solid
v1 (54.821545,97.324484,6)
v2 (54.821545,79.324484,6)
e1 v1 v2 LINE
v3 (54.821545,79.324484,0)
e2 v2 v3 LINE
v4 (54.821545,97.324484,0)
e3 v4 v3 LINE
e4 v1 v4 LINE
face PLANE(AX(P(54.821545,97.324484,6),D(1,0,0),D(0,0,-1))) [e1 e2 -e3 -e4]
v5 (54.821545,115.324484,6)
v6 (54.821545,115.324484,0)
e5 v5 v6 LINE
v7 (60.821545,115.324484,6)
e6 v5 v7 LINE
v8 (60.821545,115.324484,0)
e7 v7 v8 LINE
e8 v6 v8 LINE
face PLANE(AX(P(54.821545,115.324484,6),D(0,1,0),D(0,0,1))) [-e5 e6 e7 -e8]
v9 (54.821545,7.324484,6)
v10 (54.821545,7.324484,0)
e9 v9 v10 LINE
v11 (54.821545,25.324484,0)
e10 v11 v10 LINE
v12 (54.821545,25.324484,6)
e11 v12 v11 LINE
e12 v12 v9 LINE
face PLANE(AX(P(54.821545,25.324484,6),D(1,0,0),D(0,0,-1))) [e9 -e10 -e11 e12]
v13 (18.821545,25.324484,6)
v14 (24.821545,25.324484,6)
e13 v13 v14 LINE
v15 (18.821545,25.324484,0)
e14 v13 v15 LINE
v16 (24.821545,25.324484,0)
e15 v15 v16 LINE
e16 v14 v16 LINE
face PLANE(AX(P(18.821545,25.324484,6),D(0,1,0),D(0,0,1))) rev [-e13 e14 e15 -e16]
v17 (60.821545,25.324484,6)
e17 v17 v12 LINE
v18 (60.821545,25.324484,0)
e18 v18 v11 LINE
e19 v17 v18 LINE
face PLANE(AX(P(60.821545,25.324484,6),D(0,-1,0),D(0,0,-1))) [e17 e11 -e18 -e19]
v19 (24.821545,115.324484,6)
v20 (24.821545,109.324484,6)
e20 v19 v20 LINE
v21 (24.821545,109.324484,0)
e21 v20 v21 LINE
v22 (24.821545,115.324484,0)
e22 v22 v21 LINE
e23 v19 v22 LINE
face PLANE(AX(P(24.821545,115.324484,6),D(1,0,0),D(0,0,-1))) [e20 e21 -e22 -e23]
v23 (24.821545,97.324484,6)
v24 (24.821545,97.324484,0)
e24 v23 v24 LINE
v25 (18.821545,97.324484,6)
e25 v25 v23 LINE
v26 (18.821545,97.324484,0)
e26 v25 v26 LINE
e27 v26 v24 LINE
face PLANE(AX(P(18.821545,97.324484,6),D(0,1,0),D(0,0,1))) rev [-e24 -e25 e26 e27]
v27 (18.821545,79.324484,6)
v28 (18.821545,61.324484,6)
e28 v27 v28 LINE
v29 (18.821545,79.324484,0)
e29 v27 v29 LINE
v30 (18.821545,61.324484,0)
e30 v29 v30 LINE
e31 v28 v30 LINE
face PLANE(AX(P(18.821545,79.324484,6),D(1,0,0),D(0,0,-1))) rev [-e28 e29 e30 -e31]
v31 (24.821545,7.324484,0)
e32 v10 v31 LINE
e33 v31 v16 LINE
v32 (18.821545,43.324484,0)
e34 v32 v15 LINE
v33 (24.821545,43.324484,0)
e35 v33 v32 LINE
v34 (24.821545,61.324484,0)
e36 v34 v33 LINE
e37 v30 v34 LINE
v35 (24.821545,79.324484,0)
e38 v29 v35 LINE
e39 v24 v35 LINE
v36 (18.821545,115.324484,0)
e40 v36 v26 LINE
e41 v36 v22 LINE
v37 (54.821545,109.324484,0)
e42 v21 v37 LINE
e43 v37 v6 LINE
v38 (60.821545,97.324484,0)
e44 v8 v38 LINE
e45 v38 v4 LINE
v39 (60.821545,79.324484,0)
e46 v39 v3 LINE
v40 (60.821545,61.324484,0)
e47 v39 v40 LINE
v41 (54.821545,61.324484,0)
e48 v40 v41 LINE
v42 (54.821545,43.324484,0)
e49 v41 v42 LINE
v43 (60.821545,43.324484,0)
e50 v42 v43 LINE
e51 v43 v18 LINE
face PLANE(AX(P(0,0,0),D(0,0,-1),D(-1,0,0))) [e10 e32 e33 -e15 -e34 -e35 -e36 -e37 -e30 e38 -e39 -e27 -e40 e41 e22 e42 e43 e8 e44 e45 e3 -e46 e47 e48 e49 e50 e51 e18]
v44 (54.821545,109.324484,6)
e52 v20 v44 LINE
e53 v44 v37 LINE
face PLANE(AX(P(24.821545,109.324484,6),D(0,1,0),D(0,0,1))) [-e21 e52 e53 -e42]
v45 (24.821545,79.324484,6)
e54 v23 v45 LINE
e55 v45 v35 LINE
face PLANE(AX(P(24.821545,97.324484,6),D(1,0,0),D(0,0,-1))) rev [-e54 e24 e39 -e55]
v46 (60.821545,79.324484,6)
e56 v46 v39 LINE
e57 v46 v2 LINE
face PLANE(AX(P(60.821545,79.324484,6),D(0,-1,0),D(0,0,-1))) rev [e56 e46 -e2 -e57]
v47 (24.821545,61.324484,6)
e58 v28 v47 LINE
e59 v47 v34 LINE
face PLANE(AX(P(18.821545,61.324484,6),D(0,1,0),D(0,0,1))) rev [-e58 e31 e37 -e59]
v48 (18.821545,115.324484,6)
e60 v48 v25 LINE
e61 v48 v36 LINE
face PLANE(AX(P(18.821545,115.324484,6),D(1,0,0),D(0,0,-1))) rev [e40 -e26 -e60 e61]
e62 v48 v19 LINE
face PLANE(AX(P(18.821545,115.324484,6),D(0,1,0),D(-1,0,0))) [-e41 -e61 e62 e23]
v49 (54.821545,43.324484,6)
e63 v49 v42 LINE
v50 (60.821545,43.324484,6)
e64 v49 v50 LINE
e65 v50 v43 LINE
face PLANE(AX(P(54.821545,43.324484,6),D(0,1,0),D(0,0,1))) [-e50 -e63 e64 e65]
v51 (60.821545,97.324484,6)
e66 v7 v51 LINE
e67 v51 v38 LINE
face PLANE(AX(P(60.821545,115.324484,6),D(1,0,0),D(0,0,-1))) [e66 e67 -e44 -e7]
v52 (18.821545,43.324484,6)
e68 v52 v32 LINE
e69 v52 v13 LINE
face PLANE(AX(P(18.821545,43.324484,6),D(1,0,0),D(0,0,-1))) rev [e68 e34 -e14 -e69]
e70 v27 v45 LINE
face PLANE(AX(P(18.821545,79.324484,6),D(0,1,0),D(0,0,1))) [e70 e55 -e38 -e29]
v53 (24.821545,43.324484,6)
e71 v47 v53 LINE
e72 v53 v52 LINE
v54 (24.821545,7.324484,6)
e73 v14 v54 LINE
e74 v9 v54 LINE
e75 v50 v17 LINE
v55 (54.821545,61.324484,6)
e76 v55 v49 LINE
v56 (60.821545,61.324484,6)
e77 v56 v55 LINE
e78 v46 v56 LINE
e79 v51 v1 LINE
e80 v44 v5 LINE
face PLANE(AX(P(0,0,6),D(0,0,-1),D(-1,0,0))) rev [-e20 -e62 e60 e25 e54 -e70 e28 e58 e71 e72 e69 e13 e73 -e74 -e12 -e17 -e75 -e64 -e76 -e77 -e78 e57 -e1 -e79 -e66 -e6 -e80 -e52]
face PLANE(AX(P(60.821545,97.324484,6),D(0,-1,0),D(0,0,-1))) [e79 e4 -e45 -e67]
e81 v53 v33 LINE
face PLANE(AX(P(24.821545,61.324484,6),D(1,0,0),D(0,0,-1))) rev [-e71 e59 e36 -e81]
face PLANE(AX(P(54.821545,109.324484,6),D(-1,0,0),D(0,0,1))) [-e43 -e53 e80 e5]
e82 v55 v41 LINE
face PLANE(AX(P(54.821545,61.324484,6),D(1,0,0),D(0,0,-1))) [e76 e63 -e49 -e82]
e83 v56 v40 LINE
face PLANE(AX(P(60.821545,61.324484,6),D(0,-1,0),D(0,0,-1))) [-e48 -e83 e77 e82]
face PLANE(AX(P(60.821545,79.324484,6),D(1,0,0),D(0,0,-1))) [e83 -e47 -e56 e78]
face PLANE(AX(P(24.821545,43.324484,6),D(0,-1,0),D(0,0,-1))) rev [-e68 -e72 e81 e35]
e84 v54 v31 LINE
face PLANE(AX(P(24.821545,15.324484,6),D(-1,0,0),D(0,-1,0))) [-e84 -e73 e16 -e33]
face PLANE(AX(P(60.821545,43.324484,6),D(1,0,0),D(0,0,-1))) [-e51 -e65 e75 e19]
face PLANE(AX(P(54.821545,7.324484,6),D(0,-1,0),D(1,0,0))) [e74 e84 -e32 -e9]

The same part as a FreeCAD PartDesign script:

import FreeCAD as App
import Part
import Sketcher
from FreeCAD import Vector


def add_polygon(sketch, points):
    """Adds a closed chain of lines whose ends are joined by coincident constraints."""
    first, n = sketch.GeometryCount, len(points)
    for a, b in zip(points, points[1:] + points[:1]):
        sketch.addGeometry(Part.LineSegment(App.Vector(*a, 0), App.Vector(*b, 0)), False)
    for i in range(n):
        sketch.addConstraint(Sketcher.Constraint("Coincident", first + i, 2, first + (i + 1) % n, 1))

doc = App.newDocument("Part")
params = doc.addObject("Spreadsheet::Sheet", "Params")
for row, (alias, value) in enumerate([
    ("sketch1_width", "6 mm"),
    ("sketch1_width2", "30 mm"),
    ("sketch1_height", "18 mm"),
    ("pad1_length", "6 mm"),
], start=1):
    params.set(f"A{row}", alias)
    params.set(f"B{row}", "=" + value)
    params.setAlias(f"B{row}", alias)

body = doc.addObject("PartDesign::Body", "Body")

sketch1 = doc.addObject("Sketcher::SketchObject", "Sketch")
body.addObject(sketch1)
sketch1.AttachmentSupport = (doc.XY_Plane, [""])
sketch1.MapMode = "FlatFace"
add_polygon(sketch1, [(61, 115), (55, 115), (55, 109), (25, 109), (25, 115), (19, 115), (19, 97), (25, 97), (25, 79), (19, 79), (19, 61), (25, 61), (25, 43), (19, 43), (19, 25), (25, 25), (25, 7), (55, 7), (55, 25), (61, 25), (61, 43), (55, 43), (55, 61), (61, 61), (61, 79), (55, 79), (55, 97), (61, 97)])
sketch1.addConstraint([
    Sketcher.Constraint("Horizontal", 0),
    Sketcher.Constraint("Vertical", 1),
    Sketcher.Constraint("Horizontal", 2),
    Sketcher.Constraint("Vertical", 3),
    Sketcher.Constraint("Horizontal", 4),
    Sketcher.Constraint("Vertical", 5),
    Sketcher.Constraint("Horizontal", 6),
    Sketcher.Constraint("Vertical", 7),
    Sketcher.Constraint("Horizontal", 8),
    Sketcher.Constraint("Vertical", 9),
    Sketcher.Constraint("Horizontal", 10),
    Sketcher.Constraint("Vertical", 11),
    Sketcher.Constraint("Horizontal", 12),
    Sketcher.Constraint("Vertical", 13),
    Sketcher.Constraint("Horizontal", 14),
    Sketcher.Constraint("Vertical", 15),
    Sketcher.Constraint("Horizontal", 16),
    Sketcher.Constraint("Vertical", 17),
    Sketcher.Constraint("Horizontal", 18),
    Sketcher.Constraint("Vertical", 19),
    Sketcher.Constraint("Horizontal", 20),
    Sketcher.Constraint("Vertical", 21),
    Sketcher.Constraint("Horizontal", 22),
    Sketcher.Constraint("Vertical", 23),
    Sketcher.Constraint("Horizontal", 24),
    Sketcher.Constraint("Vertical", 25),
    Sketcher.Constraint("Horizontal", 26),
    Sketcher.Constraint("Vertical", 27),
    Sketcher.Constraint("Horizontal", 0, 2, 3, 2),
    Sketcher.Constraint("Horizontal", 14, 2, 17, 2),
    Sketcher.Constraint("Horizontal", 12, 2, 19, 2),
    Sketcher.Constraint("Horizontal", 10, 2, 21, 2),
    Sketcher.Constraint("Horizontal", 8, 2, 23, 2),
    Sketcher.Constraint("Horizontal", 6, 2, 25, 2),
    Sketcher.Constraint("Vertical", 3, 2, 6, 2),
    Sketcher.Constraint("Vertical", 5, 2, 8, 2),
    Sketcher.Constraint("Vertical", 7, 2, 10, 2),
    Sketcher.Constraint("Vertical", 9, 2, 12, 2),
    Sketcher.Constraint("Vertical", 11, 2, 14, 2),
    Sketcher.Constraint("Vertical", 1, 2, 16, 2),
    Sketcher.Constraint("Vertical", 17, 2, 20, 2),
    Sketcher.Constraint("Vertical", 19, 2, 22, 2),
    Sketcher.Constraint("Vertical", 21, 2, 24, 2),
    Sketcher.Constraint("Vertical", 23, 2, 26, 2),
    Sketcher.Constraint("Equal", 0, 4),
    Sketcher.Constraint("Equal", 26, 1),
    Sketcher.Constraint("Equal", 5, 7),
    Sketcher.Constraint("Equal", 7, 9),
    Sketcher.Constraint("Equal", 9, 11),
    Sketcher.Constraint("Equal", 11, 13),
    Sketcher.Constraint("Equal", 13, 15),
    Sketcher.Constraint("DistanceX", 0, 2, 0, 1, 6.0),
    Sketcher.Constraint("DistanceX", 2, 2, 2, 1, 30.0),
    Sketcher.Constraint("DistanceY", 5, 2, 5, 1, 18.0),
    Sketcher.Constraint("DistanceX", -1, 1, 0, 2, 54.821545),
    Sketcher.Constraint("DistanceY", -1, 1, 0, 2, 115.324484),
])
sketch1.setExpression("Constraints[79]", "Params.sketch1_width")
sketch1.setExpression("Constraints[80]", "Params.sketch1_width2")
sketch1.setExpression("Constraints[81]", "Params.sketch1_height")
pad1 = doc.addObject("PartDesign::Pad", "Pad")
body.addObject(pad1)
pad1.Profile = sketch1
pad1.setExpression("Length", "Params.pad1_length")

doc.recompute()
